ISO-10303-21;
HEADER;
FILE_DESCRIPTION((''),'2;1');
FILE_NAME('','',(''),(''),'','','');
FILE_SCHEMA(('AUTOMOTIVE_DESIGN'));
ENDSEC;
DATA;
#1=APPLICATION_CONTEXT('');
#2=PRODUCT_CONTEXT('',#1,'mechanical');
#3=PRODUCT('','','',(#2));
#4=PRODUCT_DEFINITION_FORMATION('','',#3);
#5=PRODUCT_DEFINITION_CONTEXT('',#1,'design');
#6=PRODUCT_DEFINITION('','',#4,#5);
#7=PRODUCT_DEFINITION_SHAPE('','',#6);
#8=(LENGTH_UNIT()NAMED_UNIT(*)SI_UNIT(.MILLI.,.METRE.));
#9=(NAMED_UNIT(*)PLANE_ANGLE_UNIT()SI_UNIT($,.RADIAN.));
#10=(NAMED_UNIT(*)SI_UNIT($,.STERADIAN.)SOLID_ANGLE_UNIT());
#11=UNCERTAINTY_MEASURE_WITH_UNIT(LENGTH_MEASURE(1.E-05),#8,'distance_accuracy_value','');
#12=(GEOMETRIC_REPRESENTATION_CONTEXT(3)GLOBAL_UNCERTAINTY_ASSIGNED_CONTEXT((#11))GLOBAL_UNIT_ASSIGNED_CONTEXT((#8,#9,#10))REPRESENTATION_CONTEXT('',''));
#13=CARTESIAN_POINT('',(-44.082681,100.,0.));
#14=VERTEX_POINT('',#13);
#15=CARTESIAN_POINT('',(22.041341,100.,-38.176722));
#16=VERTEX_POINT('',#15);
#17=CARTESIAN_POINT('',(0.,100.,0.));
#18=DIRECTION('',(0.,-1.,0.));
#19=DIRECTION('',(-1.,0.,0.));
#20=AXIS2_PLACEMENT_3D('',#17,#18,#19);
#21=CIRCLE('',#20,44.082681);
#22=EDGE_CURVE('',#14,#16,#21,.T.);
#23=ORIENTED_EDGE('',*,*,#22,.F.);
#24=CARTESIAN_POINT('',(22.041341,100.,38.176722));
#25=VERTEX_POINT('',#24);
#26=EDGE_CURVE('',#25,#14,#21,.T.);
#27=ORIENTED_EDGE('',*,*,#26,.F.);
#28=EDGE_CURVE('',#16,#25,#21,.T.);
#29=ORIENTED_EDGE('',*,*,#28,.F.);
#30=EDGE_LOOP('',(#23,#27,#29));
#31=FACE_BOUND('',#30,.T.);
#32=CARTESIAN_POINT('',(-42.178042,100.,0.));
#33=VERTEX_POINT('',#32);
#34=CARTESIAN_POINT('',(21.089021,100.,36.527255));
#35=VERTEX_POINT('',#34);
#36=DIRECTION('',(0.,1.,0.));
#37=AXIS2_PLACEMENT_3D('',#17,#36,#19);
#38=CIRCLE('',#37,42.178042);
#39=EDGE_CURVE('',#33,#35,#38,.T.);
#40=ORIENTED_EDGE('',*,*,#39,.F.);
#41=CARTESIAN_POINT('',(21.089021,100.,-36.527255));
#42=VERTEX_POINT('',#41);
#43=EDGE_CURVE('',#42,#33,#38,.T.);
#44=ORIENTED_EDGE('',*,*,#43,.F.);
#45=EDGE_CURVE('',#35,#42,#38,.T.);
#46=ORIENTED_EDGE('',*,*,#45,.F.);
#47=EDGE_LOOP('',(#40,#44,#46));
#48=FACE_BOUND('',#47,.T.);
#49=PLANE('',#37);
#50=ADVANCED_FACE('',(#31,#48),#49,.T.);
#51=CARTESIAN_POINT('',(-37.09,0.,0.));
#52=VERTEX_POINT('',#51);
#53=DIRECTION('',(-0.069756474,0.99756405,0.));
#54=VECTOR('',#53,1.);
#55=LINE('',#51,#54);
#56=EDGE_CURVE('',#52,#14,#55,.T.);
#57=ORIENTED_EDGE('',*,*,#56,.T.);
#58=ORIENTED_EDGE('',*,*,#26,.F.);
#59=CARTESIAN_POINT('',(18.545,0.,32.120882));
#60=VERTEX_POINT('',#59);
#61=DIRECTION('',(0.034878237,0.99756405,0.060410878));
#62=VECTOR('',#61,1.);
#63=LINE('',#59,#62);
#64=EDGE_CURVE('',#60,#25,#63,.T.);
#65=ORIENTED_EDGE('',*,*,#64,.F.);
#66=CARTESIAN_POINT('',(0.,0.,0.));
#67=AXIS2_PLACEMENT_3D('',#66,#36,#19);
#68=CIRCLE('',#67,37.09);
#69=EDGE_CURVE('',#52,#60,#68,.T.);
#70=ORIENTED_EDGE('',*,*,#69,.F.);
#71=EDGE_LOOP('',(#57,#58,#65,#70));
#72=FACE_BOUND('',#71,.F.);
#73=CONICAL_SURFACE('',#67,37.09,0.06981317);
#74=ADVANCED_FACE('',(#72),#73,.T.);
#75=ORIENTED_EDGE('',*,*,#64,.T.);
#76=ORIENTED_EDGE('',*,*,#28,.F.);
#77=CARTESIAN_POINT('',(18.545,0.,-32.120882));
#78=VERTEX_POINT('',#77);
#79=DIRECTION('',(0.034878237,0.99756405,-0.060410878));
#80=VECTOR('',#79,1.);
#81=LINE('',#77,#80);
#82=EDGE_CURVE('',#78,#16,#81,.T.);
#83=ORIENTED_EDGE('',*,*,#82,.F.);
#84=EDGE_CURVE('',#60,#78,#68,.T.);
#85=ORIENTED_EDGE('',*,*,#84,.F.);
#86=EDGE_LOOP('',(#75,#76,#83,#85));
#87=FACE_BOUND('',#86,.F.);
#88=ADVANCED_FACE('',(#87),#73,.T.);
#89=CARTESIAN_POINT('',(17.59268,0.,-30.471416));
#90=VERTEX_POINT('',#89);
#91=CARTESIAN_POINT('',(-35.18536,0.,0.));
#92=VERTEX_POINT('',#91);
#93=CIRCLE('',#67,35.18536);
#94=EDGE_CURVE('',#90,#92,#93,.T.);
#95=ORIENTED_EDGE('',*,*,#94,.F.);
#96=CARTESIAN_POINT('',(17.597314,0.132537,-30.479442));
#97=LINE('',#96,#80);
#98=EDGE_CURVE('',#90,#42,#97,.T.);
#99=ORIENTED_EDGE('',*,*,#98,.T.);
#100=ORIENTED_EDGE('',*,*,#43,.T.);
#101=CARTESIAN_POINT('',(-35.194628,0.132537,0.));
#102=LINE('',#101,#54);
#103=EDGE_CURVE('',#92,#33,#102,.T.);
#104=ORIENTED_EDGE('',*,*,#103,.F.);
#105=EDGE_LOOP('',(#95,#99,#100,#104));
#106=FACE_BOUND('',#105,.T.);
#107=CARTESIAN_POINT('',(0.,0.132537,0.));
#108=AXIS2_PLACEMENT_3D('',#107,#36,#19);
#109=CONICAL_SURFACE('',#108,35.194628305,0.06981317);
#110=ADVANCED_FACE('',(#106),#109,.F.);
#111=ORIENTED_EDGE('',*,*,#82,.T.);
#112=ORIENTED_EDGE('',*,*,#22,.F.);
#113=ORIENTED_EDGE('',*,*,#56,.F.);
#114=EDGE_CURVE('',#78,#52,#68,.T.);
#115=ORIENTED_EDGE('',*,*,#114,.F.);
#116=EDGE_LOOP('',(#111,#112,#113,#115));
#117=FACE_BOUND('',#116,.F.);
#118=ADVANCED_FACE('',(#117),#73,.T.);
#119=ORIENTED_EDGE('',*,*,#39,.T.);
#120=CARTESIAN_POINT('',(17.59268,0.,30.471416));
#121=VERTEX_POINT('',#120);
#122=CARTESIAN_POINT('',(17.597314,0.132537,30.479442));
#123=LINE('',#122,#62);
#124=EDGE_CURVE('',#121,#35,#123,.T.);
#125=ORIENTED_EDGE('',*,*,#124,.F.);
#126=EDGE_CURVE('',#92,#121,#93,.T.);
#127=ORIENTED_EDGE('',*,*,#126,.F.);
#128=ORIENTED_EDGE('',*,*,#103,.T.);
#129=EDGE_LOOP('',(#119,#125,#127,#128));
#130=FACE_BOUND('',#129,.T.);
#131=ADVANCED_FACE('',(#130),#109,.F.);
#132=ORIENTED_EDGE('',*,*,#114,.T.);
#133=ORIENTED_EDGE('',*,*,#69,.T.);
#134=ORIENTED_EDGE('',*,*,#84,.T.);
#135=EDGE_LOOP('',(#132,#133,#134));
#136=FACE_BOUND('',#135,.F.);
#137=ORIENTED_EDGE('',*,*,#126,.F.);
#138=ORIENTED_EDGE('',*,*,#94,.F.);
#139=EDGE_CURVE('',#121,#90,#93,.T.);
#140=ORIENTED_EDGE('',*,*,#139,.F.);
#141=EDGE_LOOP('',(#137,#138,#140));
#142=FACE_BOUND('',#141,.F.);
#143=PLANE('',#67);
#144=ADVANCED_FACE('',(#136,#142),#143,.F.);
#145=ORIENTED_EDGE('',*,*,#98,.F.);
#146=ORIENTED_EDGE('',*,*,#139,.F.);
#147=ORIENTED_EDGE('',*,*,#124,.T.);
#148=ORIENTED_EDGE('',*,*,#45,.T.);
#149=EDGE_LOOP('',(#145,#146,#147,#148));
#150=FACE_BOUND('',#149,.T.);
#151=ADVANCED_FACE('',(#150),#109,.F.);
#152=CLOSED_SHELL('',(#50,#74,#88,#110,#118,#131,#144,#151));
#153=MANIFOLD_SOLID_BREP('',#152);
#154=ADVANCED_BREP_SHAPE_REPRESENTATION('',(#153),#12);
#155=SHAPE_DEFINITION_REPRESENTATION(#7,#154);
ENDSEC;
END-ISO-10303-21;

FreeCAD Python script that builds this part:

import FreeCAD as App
import Part
import Sketcher


def faces_at(feature, points):
    """Names of the faces that lie closest to the given points."""
    faces = feature.Shape.Faces
    near = lambda p: min(range(len(faces)), key=lambda i: faces[i].distToShape(Part.Vertex(*p))[0])
    return sorted({f"Face{near(p) + 1}" for p in points})

doc = App.newDocument("Part")
params = doc.addObject("Spreadsheet::Sheet", "Params")
for row, (alias, value) in enumerate([
    ("pad1_length", "3.9370079 in"),
    ("pad1_taper", "4 deg"),
    ("thickness_wall", "0.0748031 in"),
], start=1):
    params.set(f"A{row}", alias)
    params.set(f"B{row}", "=" + value)
    params.setAlias(f"B{row}", alias)

body = doc.addObject("PartDesign::Body", "Body")

sketch1 = doc.addObject("Sketcher::SketchObject", "Sketch")
body.addObject(sketch1)
sketch1.AttachmentSupport = (doc.XZ_Plane, [""])
sketch1.MapMode = "FlatFace"
sketch1.addGeometry(Part.Circle(App.Vector(0, 0, 0), App.Vector(0, 0, 1), 37), False)
sketch1.addConstraint([
    Sketcher.Constraint("Coincident", 0, 3, -1, 1),
    Sketcher.Constraint("Diameter", 0, 74.18),
])
pad1 = doc.addObject("PartDesign::Pad", "Pad")
body.addObject(pad1)
pad1.Profile = sketch1
pad1.setExpression("Length", "Params.pad1_length")
pad1.Reversed = True
pad1.setExpression("TaperAngle", "Params.pad1_taper")
doc.recompute()

thickness = doc.addObject("PartDesign::Thickness", "Thickness")
body.addObject(thickness)
thickness.Base = (pad1, faces_at(pad1, [(-10.364, 0, 10.707), (6.76, 100, 10.92)]))
thickness.setExpression("Value", "Params.thickness_wall")
thickness.Reversed = True
thickness.Join = "Intersection"

doc.recompute()
